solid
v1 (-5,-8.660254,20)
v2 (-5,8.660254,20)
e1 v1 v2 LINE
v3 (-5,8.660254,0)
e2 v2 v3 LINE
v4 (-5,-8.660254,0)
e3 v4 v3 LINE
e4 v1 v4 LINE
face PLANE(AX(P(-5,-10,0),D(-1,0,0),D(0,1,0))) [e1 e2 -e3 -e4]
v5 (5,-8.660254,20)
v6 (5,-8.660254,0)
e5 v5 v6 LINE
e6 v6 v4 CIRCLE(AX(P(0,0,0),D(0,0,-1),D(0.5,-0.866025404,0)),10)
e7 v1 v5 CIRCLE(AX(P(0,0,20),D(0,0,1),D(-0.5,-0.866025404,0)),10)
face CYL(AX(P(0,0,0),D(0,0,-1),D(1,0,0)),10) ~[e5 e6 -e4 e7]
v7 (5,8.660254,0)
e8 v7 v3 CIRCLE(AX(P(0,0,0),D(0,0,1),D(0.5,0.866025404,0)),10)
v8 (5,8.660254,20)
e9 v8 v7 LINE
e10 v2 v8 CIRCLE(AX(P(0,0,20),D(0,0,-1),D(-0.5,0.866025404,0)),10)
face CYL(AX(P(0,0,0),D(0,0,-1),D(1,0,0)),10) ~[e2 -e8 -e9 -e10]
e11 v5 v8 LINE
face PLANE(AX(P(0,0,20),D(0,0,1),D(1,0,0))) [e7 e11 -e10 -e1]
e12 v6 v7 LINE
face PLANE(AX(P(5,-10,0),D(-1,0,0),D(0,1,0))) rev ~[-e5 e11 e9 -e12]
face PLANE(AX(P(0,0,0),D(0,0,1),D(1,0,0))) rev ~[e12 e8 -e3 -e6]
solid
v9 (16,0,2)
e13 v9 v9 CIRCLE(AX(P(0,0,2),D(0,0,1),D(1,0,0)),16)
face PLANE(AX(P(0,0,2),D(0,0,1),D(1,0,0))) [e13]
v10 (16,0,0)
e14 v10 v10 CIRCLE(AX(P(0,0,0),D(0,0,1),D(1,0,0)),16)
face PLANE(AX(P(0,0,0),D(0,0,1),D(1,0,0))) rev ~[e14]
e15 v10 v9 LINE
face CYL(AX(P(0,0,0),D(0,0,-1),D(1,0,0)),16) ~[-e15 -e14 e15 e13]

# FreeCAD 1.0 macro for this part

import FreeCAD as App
import Part
import Sketcher


def add_polygon(sketch, points):
    """Adds a closed chain of lines whose ends are joined by coincident constraints."""
    first, n = sketch.GeometryCount, len(points)
    for a, b in zip(points, points[1:] + points[:1]):
        sketch.addGeometry(Part.LineSegment(App.Vector(*a, 0), App.Vector(*b, 0)), False)
    for i in range(n):
        sketch.addConstraint(Sketcher.Constraint("Coincident", first + i, 2, first + (i + 1) % n, 1))

doc = App.newDocument("Part")
body = doc.addObject("PartDesign::Body", "Body")

sketch1 = doc.addObject("Sketcher::SketchObject", "Sketch")
body.addObject(sketch1)
sketch1.AttachmentSupport = (doc.XY_Plane, [""])
sketch1.MapMode = "FlatFace"
add_polygon(sketch1, [(-5, 10), (-5, -10), (5, -10), (5, 10)])
sketch1.addConstraint([
    Sketcher.Constraint("Vertical", 0),
    Sketcher.Constraint("Horizontal", 1),
    Sketcher.Constraint("Vertical", 2),
    Sketcher.Constraint("Horizontal", 3),
    Sketcher.Constraint("Symmetric", 0, 2, 2, 2, -1, 1),
    Sketcher.Constraint("DistanceX", 1, 1, 1, 2, 10.0),
    Sketcher.Constraint("DistanceY", 0, 2, 0, 1, 20.0),
])
pad1 = doc.addObject("PartDesign::Pad", "Pad")
body.addObject(pad1)
pad1.Profile = sketch1
pad1.Length = 20
body2 = doc.addObject("PartDesign::Body", "Body001")

sketch2 = doc.addObject("Sketcher::SketchObject", "Sketch001")
body2.addObject(sketch2)
sketch2.AttachmentSupport = (doc.getObject("XY_Plane001"), [""])
sketch2.MapMode = "FlatFace"
sketch2.addGeometry(Part.Circle(App.Vector(0, 0, 0), App.Vector(0, 0, 1), 10), False)
sketch2.addConstraint([
    Sketcher.Constraint("Coincident", 0, 3, -1, 1),
    Sketcher.Constraint("Diameter", 0, 20.0),
])
pad2 = doc.addObject("PartDesign::Pad", "Pad001")
body2.addObject(pad2)
pad2.Profile = sketch2
pad2.Length = 20
doc.recompute()

boolean = doc.addObject("PartDesign::Boolean", "Boolean")
body2.addObject(boolean)
boolean.Type = "Common"
boolean.addObjects([body])
body3 = doc.addObject("PartDesign::Body", "Body002")

sketch3 = doc.addObject("Sketcher::SketchObject", "Sketch002")
body3.addObject(sketch3)
sketch3.AttachmentSupport = (doc.getObject("XY_Plane002"), [""])
sketch3.MapMode = "FlatFace"
sketch3.addGeometry(Part.Circle(App.Vector(0, 0, 0), App.Vector(0, 0, 1), 16), False)
sketch3.addConstraint([
    Sketcher.Constraint("Coincident", 0, 3, -1, 1),
    Sketcher.Constraint("Diameter", 0, 32.0),
])
pad3 = doc.addObject("PartDesign::Pad", "Pad002")
body3.addObject(pad3)
pad3.Profile = sketch3
pad3.Length = 2

doc.recompute()
